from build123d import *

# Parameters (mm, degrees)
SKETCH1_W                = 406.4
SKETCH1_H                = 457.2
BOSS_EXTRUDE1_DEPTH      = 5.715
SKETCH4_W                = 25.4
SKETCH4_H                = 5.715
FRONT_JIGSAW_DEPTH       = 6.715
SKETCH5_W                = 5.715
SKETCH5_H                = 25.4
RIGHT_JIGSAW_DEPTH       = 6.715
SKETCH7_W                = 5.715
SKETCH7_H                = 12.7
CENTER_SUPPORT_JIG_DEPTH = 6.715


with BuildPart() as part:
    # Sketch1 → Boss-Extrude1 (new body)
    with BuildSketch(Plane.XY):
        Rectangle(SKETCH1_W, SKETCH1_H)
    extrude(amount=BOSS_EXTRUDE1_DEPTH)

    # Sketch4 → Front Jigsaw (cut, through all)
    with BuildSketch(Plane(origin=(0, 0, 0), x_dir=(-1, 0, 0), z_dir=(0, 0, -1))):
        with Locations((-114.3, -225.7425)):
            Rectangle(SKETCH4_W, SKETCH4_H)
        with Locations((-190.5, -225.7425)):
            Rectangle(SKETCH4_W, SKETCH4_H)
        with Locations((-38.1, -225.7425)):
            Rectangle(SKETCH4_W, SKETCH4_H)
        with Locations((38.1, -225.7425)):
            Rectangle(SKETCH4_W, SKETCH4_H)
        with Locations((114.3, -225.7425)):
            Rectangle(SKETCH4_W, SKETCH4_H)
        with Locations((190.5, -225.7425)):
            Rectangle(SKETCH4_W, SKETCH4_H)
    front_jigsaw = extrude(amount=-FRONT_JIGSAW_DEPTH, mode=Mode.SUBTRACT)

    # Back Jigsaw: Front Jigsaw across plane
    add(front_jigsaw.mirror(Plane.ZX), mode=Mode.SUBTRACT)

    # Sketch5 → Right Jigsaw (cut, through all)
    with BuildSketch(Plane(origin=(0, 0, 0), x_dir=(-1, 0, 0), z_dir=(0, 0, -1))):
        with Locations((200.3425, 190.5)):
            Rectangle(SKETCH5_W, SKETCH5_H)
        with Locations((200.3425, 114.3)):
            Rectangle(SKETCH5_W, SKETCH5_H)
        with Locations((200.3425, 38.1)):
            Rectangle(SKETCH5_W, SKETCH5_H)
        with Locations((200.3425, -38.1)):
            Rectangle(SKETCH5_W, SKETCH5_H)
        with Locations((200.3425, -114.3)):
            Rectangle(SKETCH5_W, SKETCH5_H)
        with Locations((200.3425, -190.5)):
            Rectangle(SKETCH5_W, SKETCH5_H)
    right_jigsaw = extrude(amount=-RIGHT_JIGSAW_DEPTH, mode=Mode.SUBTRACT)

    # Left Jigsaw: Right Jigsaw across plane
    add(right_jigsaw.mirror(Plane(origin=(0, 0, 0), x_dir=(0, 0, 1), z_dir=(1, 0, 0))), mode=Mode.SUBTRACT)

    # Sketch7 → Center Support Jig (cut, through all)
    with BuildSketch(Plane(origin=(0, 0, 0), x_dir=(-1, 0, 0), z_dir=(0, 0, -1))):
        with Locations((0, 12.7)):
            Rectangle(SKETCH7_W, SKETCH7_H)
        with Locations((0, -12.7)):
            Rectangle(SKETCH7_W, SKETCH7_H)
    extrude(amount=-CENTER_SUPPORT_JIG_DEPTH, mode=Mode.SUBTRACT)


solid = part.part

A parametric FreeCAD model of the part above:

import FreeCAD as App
import Part
import Sketcher

V = App.Vector
Q = App.Units.Quantity


def add_polygon(sketch, points):
    """Adds a closed chain of lines whose ends are joined by coincident constraints."""
    first, n = sketch.GeometryCount, len(points)
    for a, b in zip(points, points[1:] + points[:1]):
        sketch.addGeometry(Part.LineSegment(App.Vector(*a, 0), App.Vector(*b, 0)), False)
    for i in range(n):
        sketch.addConstraint(Sketcher.Constraint("Coincident", first + i, 2, first + (i + 1) % n, 1))

doc = App.newDocument("Part")
body = doc.addObject("PartDesign::Body", "Body")

# Sketch on XY plane
sketch1 = body.newObject("Sketcher::SketchObject", "Sketch")
sketch1.AttachmentSupport = (doc.getObject("XY_Plane"), [""])
sketch1.MapMode = "FlatFace"
add_polygon(sketch1, [(-203, 229), (-203, -229), (203, -229), (203, 229)])  # lines 0-3
sketch1.addConstraint([
    Sketcher.Constraint("Vertical", 0),
    Sketcher.Constraint("Horizontal", 1),
    Sketcher.Constraint("Vertical", 2),
    Sketcher.Constraint("Horizontal", 3),
    Sketcher.Constraint("Symmetric", 0, 2, 2, 2, -1, 1),
    Sketcher.Constraint("DistanceX", 1, 1, 1, 2, Q("16 in")),
    Sketcher.Constraint("DistanceY", 0, 2, 0, 1, Q("18 in")),
])
pad1 = body.newObject("PartDesign::Pad", "Pad")
pad1.Profile = sketch1
pad1.Length = Q("0.225 in")

# Sketch on XY plane
sketch2 = body.newObject("Sketcher::SketchObject", "Sketch001")
sketch2.AttachmentSupport = (doc.getObject("XY_Plane"), [""])
sketch2.MapMode = "FlatFace"
add_polygon(sketch2, [(127, -223), (127, -229), (102, -229), (102, -223)])  # lines 0-3
add_polygon(sketch2, [(203, -223), (203, -229), (178, -229), (178, -223)])  # lines 4-7
add_polygon(sketch2, [(51, -223), (51, -229), (25, -229), (25, -223)])  # lines 8-11
add_polygon(sketch2, [(-25, -223), (-25, -229), (-51, -229), (-51, -223)])  # lines 12-15
add_polygon(sketch2, [(-102, -223), (-102, -229), (-127, -229), (-127, -223)])  # lines 16-19
add_polygon(sketch2, [(-178, -223), (-178, -229), (-203, -229), (-203, -223)])  # lines 20-23
sketch2.addConstraint([
    Sketcher.Constraint("Vertical", 0),
    Sketcher.Constraint("Horizontal", 1),
    Sketcher.Constraint("Vertical", 2),
    Sketcher.Constraint("Horizontal", 3),
    Sketcher.Constraint("Vertical", 4),
    Sketcher.Constraint("Horizontal", 5),
    Sketcher.Constraint("Vertical", 6),
    Sketcher.Constraint("Horizontal", 7),
    Sketcher.Constraint("Vertical", 8),
    Sketcher.Constraint("Horizontal", 9),
    Sketcher.Constraint("Vertical", 10),
    Sketcher.Constraint("Horizontal", 11),
    Sketcher.Constraint("Vertical", 12),
    Sketcher.Constraint("Horizontal", 13),
    Sketcher.Constraint("Vertical", 14),
    Sketcher.Constraint("Horizontal", 15),
    Sketcher.Constraint("Vertical", 16),
    Sketcher.Constraint("Horizontal", 17),
    Sketcher.Constraint("Vertical", 18),
    Sketcher.Constraint("Horizontal", 19),
    Sketcher.Constraint("Vertical", 20),
    Sketcher.Constraint("Horizontal", 21),
    Sketcher.Constraint("Vertical", 22),
    Sketcher.Constraint("Horizontal", 23),
    Sketcher.Constraint("Symmetric", 9, 2, 12, 2, -2),
    Sketcher.Constraint("Symmetric", 11, 2, 14, 2, -2),
    Sketcher.Constraint("Symmetric", 1, 2, 16, 2, -2),
    Sketcher.Constraint("Symmetric", 3, 2, 18, 2, -2),
    Sketcher.Constraint("Symmetric", 5, 2, 20, 2, -2),
    Sketcher.Constraint("Symmetric", 7, 2, 22, 2, -2),
    Sketcher.Constraint("Horizontal", 1, 2, 4, 2),
    Sketcher.Constraint("Horizontal", 3, 2, 6, 2),
    Sketcher.Constraint("Horizontal", 5, 2, 8, 2),
    Sketcher.Constraint("Horizontal", 7, 2, 10, 2),
    Sketcher.Constraint("Equal", 3, 5),
    Sketcher.Constraint("Equal", 7, 9),
    Sketcher.Constraint("DistanceX", 1, 2, 1, 1, Q("1 in")),
    Sketcher.Constraint("DistanceX", -1, 1, 0, 2, Q("5 in")),
    Sketcher.Constraint("DistanceY", 0, 2, -1, 1, Q("9 in")),
    Sketcher.Constraint("DistanceX", -1, 1, 4, 2, Q("8 in")),
    Sketcher.Constraint("DistanceX", -1, 1, 8, 2, Q("2 in")),
    Sketcher.Constraint("DistanceY", 0, 2, 0, 1, Q("0.225 in")),
])
pocket1 = body.newObject("PartDesign::Pocket", "Pocket")
pocket1.Profile = sketch2
pocket1.Type = "ThroughAll"
pocket1.Reversed = True
doc.recompute()

mirrored = body.newObject("PartDesign::Mirrored", "Mirrored")
mirrored.Originals = [pocket1]
mirrored.MirrorPlane = (doc.getObject("XZ_Plane"), [""])
body.Tip = mirrored

# Sketch on XY plane
sketch3 = body.newObject("Sketcher::SketchObject", "Sketch002")
sketch3.AttachmentSupport = (doc.getObject("XY_Plane"), [""])
sketch3.MapMode = "FlatFace"
add_polygon(sketch3, [(-197, 203), (-197, 178), (-203, 178), (-203, 203)])  # lines 0-3
add_polygon(sketch3, [(-197, 127), (-197, 102), (-203, 102), (-203, 127)])  # lines 4-7
add_polygon(sketch3, [(-197, 51), (-197, 25), (-203, 25), (-203, 51)])  # lines 8-11
add_polygon(sketch3, [(-197, -25), (-197, -51), (-203, -51), (-203, -25)])  # lines 12-15
add_polygon(sketch3, [(-197, -102), (-197, -127), (-203, -127), (-203, -102)])  # lines 16-19
add_polygon(sketch3, [(-197, -178), (-197, -203), (-203, -203), (-203, -178)])  # lines 20-23
sketch3.addConstraint([
    Sketcher.Constraint("Vertical", 0),
    Sketcher.Constraint("Horizontal", 1),
    Sketcher.Constraint("Vertical", 2),
    Sketcher.Constraint("Horizontal", 3),
    Sketcher.Constraint("Vertical", 4),
    Sketcher.Constraint("Horizontal", 5),
    Sketcher.Constraint("Vertical", 6),
    Sketcher.Constraint("Horizontal", 7),
    Sketcher.Constraint("Vertical", 8),
    Sketcher.Constraint("Horizontal", 9),
    Sketcher.Constraint("Vertical", 10),
    Sketcher.Constraint("Horizontal", 11),
    Sketcher.Constraint("Vertical", 12),
    Sketcher.Constraint("Horizontal", 13),
    Sketcher.Constraint("Vertical", 14),
    Sketcher.Constraint("Horizontal", 15),
    Sketcher.Constraint("Vertical", 16),
    Sketcher.Constraint("Horizontal", 17),
    Sketcher.Constraint("Vertical", 18),
    Sketcher.Constraint("Horizontal", 19),
    Sketcher.Constraint("Vertical", 20),
    Sketcher.Constraint("Horizontal", 21),
    Sketcher.Constraint("Vertical", 22),
    Sketcher.Constraint("Horizontal", 23),
    Sketcher.Constraint("Symmetric", 11, 2, 12, 2, -1),
    Sketcher.Constraint("Symmetric", 9, 2, 14, 2, -1),
    Sketcher.Constraint("Symmetric", 7, 2, 16, 2, -1),
    Sketcher.Constraint("Symmetric", 5, 2, 18, 2, -1),
    Sketcher.Constraint("Symmetric", 3, 2, 20, 2, -1),
    Sketcher.Constraint("Symmetric", 1, 2, 22, 2, -1),
    Sketcher.Constraint("Vertical", 3, 2, 4, 2),
    Sketcher.Constraint("Vertical", 2, 2, 5, 2),
    Sketcher.Constraint("Vertical", 7, 2, 8, 2),
    Sketcher.Constraint("Vertical", 6, 2, 9, 2),
    Sketcher.Constraint("Equal", 2, 4),
    Sketcher.Constraint("Equal", 6, 8),
    Sketcher.Constraint("DistanceY", 0, 2, 0, 1, Q("1 in")),
    Sketcher.Constraint("DistanceY", -1, 1, 0, 2, Q("7 in")),
    Sketcher.Constraint("DistanceX", 1, 2, -1, 1, Q("8 in")),
    Sketcher.Constraint("DistanceY", -1, 1, 4, 2, Q("4 in")),
    Sketcher.Constraint("DistanceY", -1, 1, 8, 2, Q("1 in")),
    Sketcher.Constraint("DistanceX", 1, 2, 1, 1, Q("0.225 in")),
])
pocket2 = body.newObject("PartDesign::Pocket", "Pocket001")
pocket2.Profile = sketch3
pocket2.Type = "ThroughAll"
pocket2.Reversed = True
doc.recompute()

mirrored2 = body.newObject("PartDesign::Mirrored", "Mirrored001")
mirrored2.Originals = [pocket2]
mirrored2.MirrorPlane = (doc.getObject("YZ_Plane"), [""])
body.Tip = mirrored2

# Sketch on XY plane
sketch4 = body.newObject("Sketcher::SketchObject", "Sketch003")
sketch4.AttachmentSupport = (doc.getObject("XY_Plane"), [""])
sketch4.MapMode = "FlatFace"
add_polygon(sketch4, [(3, 19), (3, 6), (-3, 6), (-3, 19)])  # lines 0-3
add_polygon(sketch4, [(3, -6), (3, -19), (-3, -19), (-3, -6)])  # lines 4-7
sketch4.addConstraint([
    Sketcher.Constraint("Vertical", 0),
    Sketcher.Constraint("Horizontal", 1),
    Sketcher.Constraint("Vertical", 2),
    Sketcher.Constraint("Horizontal", 3),
    Sketcher.Constraint("Vertical", 4),
    Sketcher.Constraint("Horizontal", 5),
    Sketcher.Constraint("Vertical", 6),
    Sketcher.Constraint("Horizontal", 7),
    Sketcher.Constraint("Symmetric", 2, 2, 4, 2, -1, 1),
    Sketcher.Constraint("Symmetric", 0, 2, 6, 2, -1, 1),
    Sketcher.Constraint("Vertical", 3, 2, 4, 2),
    Sketcher.Constraint("DistanceY", 0, 2, 0, 1, Q("0.5 in")),
    Sketcher.Constraint("DistanceY", 4, 2, 0, 2, Q("1 in")),
    Sketcher.Constraint("DistanceX", 1, 2, 1, 1, Q("0.225 in")),
])
pocket3 = body.newObject("PartDesign::Pocket", "Pocket002")
pocket3.Profile = sketch4
pocket3.Type = "ThroughAll"
pocket3.Reversed = True

doc.recompute()
